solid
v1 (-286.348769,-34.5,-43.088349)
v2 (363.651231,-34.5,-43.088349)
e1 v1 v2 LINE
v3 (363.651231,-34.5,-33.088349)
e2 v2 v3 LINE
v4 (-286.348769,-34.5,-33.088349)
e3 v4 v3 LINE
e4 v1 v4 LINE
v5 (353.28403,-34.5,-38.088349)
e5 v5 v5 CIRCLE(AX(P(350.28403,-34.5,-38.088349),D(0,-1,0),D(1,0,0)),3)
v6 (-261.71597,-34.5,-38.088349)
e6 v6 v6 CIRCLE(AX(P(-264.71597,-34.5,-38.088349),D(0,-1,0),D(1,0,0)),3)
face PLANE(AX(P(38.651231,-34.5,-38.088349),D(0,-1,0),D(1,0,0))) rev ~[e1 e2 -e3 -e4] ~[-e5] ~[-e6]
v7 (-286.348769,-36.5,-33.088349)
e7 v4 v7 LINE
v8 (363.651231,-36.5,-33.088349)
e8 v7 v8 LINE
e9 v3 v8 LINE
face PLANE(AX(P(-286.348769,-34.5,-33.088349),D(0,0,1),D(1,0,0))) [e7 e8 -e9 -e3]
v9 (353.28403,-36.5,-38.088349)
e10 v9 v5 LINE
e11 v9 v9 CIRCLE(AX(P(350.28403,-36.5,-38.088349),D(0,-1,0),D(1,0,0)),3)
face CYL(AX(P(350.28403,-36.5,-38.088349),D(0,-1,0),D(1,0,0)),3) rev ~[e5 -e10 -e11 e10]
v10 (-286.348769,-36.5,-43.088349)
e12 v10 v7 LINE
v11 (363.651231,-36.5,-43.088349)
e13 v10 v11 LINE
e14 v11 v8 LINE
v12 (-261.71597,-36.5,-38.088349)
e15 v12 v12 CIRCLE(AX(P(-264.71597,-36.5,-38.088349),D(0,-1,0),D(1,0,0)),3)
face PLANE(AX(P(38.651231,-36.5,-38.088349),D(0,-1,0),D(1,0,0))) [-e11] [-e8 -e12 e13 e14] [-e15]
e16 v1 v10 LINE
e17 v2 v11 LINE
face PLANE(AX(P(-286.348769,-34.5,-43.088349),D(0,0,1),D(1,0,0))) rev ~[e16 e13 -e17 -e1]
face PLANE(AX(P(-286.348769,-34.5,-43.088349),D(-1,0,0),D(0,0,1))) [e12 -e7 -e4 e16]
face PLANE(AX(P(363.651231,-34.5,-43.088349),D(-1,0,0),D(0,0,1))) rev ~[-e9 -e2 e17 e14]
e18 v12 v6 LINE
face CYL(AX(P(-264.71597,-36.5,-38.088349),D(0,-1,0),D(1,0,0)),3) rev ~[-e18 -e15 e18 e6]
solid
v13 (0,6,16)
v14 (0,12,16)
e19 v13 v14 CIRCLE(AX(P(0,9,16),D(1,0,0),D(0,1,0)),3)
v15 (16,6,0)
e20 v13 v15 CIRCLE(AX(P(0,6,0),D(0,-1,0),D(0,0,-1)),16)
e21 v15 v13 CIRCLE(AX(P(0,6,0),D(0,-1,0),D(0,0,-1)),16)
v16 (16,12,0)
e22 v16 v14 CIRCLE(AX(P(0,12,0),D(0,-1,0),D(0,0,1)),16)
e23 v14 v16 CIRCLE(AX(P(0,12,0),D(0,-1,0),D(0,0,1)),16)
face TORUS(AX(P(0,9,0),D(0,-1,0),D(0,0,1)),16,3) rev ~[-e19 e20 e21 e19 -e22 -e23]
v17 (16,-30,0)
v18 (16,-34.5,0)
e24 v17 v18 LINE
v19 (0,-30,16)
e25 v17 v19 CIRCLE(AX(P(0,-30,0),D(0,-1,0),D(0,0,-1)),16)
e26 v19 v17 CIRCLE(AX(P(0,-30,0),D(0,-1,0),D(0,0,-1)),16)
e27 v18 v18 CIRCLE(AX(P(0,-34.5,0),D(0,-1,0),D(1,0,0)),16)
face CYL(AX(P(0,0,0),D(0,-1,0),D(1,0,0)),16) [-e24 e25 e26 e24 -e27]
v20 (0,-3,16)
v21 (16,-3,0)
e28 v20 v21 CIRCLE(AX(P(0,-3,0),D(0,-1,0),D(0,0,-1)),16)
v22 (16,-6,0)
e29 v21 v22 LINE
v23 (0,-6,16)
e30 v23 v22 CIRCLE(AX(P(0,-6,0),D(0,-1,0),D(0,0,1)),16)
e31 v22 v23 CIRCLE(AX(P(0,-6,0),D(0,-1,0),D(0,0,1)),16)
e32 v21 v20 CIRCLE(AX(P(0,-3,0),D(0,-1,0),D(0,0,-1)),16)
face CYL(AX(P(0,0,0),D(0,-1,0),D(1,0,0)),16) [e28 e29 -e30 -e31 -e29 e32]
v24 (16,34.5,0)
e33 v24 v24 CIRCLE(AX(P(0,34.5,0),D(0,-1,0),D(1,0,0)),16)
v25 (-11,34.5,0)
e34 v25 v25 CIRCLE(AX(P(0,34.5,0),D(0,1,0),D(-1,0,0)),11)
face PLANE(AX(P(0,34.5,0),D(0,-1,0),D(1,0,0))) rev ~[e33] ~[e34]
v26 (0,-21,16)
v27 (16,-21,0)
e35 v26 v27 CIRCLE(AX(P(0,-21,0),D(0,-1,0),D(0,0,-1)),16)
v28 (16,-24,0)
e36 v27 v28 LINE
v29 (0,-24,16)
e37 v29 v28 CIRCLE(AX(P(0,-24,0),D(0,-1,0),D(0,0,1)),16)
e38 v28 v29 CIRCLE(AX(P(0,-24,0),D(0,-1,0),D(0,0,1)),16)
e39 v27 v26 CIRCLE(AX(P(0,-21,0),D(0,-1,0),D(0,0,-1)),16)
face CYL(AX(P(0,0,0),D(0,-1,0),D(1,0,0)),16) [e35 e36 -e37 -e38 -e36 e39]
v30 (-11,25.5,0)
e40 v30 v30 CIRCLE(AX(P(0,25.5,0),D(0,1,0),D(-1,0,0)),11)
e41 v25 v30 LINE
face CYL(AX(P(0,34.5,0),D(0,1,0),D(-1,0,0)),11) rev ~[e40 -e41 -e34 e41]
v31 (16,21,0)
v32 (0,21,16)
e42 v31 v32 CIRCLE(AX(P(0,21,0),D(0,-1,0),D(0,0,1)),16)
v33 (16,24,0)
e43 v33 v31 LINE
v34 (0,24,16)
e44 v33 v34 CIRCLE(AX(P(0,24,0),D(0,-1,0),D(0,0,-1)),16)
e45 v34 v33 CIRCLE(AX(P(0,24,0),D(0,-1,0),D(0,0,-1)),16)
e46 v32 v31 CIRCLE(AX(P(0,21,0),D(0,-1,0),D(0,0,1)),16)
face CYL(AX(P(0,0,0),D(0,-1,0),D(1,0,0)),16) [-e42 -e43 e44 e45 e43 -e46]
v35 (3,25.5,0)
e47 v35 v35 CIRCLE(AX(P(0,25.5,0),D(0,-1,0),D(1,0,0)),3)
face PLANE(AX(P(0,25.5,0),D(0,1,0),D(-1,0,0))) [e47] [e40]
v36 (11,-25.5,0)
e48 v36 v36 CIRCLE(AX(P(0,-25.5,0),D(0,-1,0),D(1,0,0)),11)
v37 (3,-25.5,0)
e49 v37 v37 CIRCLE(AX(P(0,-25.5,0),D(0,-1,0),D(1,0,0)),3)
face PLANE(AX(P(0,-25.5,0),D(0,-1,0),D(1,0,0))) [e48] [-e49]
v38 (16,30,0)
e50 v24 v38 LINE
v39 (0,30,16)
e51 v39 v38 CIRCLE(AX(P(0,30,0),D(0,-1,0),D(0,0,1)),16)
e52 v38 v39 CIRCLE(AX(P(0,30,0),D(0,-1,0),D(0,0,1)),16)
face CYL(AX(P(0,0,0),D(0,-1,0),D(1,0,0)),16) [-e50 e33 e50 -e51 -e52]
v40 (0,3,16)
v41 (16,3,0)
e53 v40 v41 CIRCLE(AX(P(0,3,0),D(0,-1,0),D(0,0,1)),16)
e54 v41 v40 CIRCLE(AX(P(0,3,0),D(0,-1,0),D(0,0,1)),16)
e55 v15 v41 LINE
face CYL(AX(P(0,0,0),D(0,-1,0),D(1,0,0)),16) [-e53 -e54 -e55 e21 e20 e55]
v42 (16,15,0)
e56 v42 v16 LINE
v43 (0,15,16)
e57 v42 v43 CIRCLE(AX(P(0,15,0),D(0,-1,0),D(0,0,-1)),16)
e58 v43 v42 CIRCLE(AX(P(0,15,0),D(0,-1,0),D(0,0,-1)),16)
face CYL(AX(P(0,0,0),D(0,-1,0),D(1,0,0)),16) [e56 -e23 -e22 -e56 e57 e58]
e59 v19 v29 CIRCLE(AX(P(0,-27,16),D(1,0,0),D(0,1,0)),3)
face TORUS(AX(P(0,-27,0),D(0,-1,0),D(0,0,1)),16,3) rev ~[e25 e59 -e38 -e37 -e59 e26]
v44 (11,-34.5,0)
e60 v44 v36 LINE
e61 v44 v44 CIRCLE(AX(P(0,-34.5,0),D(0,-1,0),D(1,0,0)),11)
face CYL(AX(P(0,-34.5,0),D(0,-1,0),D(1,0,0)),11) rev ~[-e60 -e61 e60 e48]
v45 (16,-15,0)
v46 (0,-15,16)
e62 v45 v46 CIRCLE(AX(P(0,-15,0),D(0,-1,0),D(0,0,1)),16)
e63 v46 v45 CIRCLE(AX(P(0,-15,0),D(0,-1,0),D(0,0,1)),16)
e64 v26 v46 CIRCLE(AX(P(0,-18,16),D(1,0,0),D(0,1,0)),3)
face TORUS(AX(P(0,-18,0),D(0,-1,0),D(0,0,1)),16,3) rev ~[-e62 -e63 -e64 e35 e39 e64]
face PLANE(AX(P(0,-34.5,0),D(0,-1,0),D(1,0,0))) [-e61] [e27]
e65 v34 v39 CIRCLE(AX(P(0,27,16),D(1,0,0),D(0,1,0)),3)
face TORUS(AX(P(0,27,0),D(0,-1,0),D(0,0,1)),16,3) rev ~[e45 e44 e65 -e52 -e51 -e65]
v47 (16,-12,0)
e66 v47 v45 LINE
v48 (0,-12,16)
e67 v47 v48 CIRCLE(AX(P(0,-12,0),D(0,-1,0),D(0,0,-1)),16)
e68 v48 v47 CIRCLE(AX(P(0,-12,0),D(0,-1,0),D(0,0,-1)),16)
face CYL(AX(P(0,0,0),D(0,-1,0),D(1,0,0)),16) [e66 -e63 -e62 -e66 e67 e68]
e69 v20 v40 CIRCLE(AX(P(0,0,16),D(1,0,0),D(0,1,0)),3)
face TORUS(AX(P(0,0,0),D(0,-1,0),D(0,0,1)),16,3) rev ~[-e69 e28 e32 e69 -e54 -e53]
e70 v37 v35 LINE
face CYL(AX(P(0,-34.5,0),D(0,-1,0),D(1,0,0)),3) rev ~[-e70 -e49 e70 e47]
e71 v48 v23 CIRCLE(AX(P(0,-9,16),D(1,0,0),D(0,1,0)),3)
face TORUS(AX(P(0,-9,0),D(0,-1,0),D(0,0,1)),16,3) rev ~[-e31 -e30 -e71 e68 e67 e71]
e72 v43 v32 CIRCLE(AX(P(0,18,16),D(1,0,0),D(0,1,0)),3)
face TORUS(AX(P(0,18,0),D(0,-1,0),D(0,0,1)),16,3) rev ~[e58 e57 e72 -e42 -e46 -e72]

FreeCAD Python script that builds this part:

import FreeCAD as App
import Part
import Sketcher

doc = App.newDocument("Part")
body = doc.addObject("PartDesign::Body", "Body")

sketch1 = body.newObject("Sketcher::SketchObject", "Sketch")
sketch1.AttachmentSupport = (doc.getObject("XZ_Plane"), [""])
sketch1.MapMode = "FlatFace"
sketch1.addGeometry(Part.Circle(App.Vector(0, 0, 0), App.Vector(0, 0, 1), 16), False)
sketch1.addConstraint(Sketcher.Constraint("Coincident", 0, 3, -1, 1))
sketch1.addConstraint(Sketcher.Constraint("Diameter", 0, 32.0))
pad1 = body.newObject("PartDesign::Pad", "Pad")
pad1.Profile = sketch1
pad1.Length = 69
pad1.Midplane = True

sketch2 = body.newObject("Sketcher::SketchObject", "Sketch001")
sketch2.AttachmentSupport = (doc.getObject("YZ_Plane"), [""])
sketch2.MapMode = "FlatFace"
sketch2.addGeometry(Part.Circle(App.Vector(-27, 16, 0), App.Vector(0, 0, 1), 3), False)
sketch2.addGeometry(Part.Circle(App.Vector(-18, 16, 0), App.Vector(0, 0, 1), 3), False)
sketch2.addGeometry(Part.Circle(App.Vector(-9, 16, 0), App.Vector(0, 0, 1), 3), False)
sketch2.addGeometry(Part.Circle(App.Vector(0, 16, 0), App.Vector(0, 0, 1), 3), False)
sketch2.addGeometry(Part.Circle(App.Vector(9, 16, 0), App.Vector(0, 0, 1), 3), False)
sketch2.addGeometry(Part.Circle(App.Vector(18, 16, 0), App.Vector(0, 0, 1), 3), False)
sketch2.addGeometry(Part.Circle(App.Vector(27, 16, 0), App.Vector(0, 0, 1), 3), False)
sketch2.addConstraint(Sketcher.Constraint("Equal", 0, 1))
sketch2.addConstraint(Sketcher.Constraint("Equal", 1, 2))
sketch2.addConstraint(Sketcher.Constraint("Equal", 2, 3))
sketch2.addConstraint(Sketcher.Constraint("Equal", 3, 4))
sketch2.addConstraint(Sketcher.Constraint("Equal", 4, 5))
sketch2.addConstraint(Sketcher.Constraint("Equal", 5, 6))
sketch2.addConstraint(Sketcher.Constraint("Symmetric", 2, 3, 4, 3, -2))
sketch2.addConstraint(Sketcher.Constraint("Symmetric", 1, 3, 5, 3, -2))
sketch2.addConstraint(Sketcher.Constraint("Symmetric", 0, 3, 6, 3, -2))
sketch2.addConstraint(Sketcher.Constraint("PointOnObject", 3, 3, -2))
sketch2.addConstraint(Sketcher.Constraint("Horizontal", 0, 3, 1, 3))
sketch2.addConstraint(Sketcher.Constraint("Horizontal", 1, 3, 2, 3))
sketch2.addConstraint(Sketcher.Constraint("Horizontal", 2, 3, 3, 3))
sketch2.addConstraint(Sketcher.Constraint("Diameter", 0, 6.0))
sketch2.addConstraint(Sketcher.Constraint("DistanceX", 0, 3, -1, 1, 27.0))
sketch2.addConstraint(Sketcher.Constraint("DistanceY", -1, 1, 0, 3, 16.0))
sketch2.addConstraint(Sketcher.Constraint("DistanceX", 1, 3, -1, 1, 18.0))
sketch2.addConstraint(Sketcher.Constraint("DistanceX", 2, 3, -1, 1, 9.0))
groove = body.newObject("PartDesign::Groove", "Groove")
groove.Profile = sketch2
groove.ReferenceAxis = (sketch2, ["H_Axis"])
groove.Angle = 360

sketch3 = body.newObject("Sketcher::SketchObject", "Sketch002")
sketch3.AttachmentSupport = (doc.getObject("XZ_Plane"), [""])
sketch3.MapMode = "FlatFace"
sketch3.AttachmentOffset = App.Placement(App.Vector(0, 0, 34.5), App.Rotation())
sketch3.addGeometry(Part.Circle(App.Vector(0, 0, 0), App.Vector(0, 0, 1), 3), False)
sketch3.addConstraint(Sketcher.Constraint("Coincident", 0, 3, -1, 1))
sketch3.addConstraint(Sketcher.Constraint("Diameter", 0, 6.0))
pocket1 = body.newObject("PartDesign::Pocket", "Pocket")
pocket1.Profile = sketch3
pocket1.Type = "ThroughAll"

sketch4 = body.newObject("Sketcher::SketchObject", "Sketch003")
sketch4.AttachmentSupport = (doc.getObject("XZ_Plane"), [""])
sketch4.MapMode = "FlatFace"
sketch4.AttachmentOffset = App.Placement(App.Vector(0, 0, 34.5), App.Rotation())
sketch4.addGeometry(Part.Circle(App.Vector(0, 0, 0), App.Vector(0, 0, 1), 11), False)
sketch4.addConstraint(Sketcher.Constraint("Coincident", 0, 3, -1, 1))
sketch4.addConstraint(Sketcher.Constraint("Diameter", 0, 22.0))
pocket2 = body.newObject("PartDesign::Pocket", "Pocket001")
pocket2.Profile = sketch4
pocket2.Length = 9

sketch5 = body.newObject("Sketcher::SketchObject", "Sketch004")
sketch5.AttachmentSupport = (doc.getObject("XZ_Plane"), [""])
sketch5.MapMode = "FlatFace"
sketch5.AttachmentOffset = App.Placement(App.Vector(0, 0, -34.5), App.Rotation())
sketch5.addGeometry(Part.Circle(App.Vector(0, 0, 0), App.Vector(0, 0, 1), 11), False)
sketch5.addConstraint(Sketcher.Constraint("Coincident", 0, 3, -1, 1))
sketch5.addConstraint(Sketcher.Constraint("Diameter", 0, 22.0))
pocket3 = body.newObject("PartDesign::Pocket", "Pocket002")
pocket3.Profile = sketch5
pocket3.Length = 9
pocket3.Reversed = True
body2 = doc.addObject("PartDesign::Body", "Body001")

sketch6 = body2.newObject("Sketcher::SketchObject", "Sketch005")
sketch6.AttachmentSupport = (doc.getObject("XZ_Plane001"), [""])
sketch6.MapMode = "FlatFace"
sketch6.AttachmentOffset = App.Placement(App.Vector(0, 0, 34.5), App.Rotation())
sketch6.addGeometry(Part.LineSegment(App.Vector(-286.348769, -33.088349, 0), App.Vector(-286.348769, -43.088349, 0)), False)
sketch6.addGeometry(Part.LineSegment(App.Vector(-286.348769, -43.088349, 0), App.Vector(363.651231, -43.088349, 0)), False)
sketch6.addGeometry(Part.LineSegment(App.Vector(363.651231, -43.088349, 0), App.Vector(363.651231, -33.088349, 0)), False)
sketch6.addGeometry(Part.LineSegment(App.Vector(363.651231, -33.088349, 0), App.Vector(-286.348769, -33.088349, 0)), False)
sketch6.addConstraint(Sketcher.Constraint("Coincident", 0, 2, 1, 1))
sketch6.addConstraint(Sketcher.Constraint("Coincident", 1, 2, 2, 1))
sketch6.addConstraint(Sketcher.Constraint("Coincident", 2, 2, 3, 1))
sketch6.addConstraint(Sketcher.Constraint("Coincident", 3, 2, 0, 1))
sketch6.addConstraint(Sketcher.Constraint("Vertical", 0))
sketch6.addConstraint(Sketcher.Constraint("Horizontal", 1))
sketch6.addConstraint(Sketcher.Constraint("Vertical", 2))
sketch6.addConstraint(Sketcher.Constraint("Horizontal", 3))
sketch6.addConstraint(Sketcher.Constraint("DistanceX", 1, 1, 1, 2, 650.0))
sketch6.addConstraint(Sketcher.Constraint("DistanceY", 0, 2, 0, 1, 10.0))
sketch6.addConstraint(Sketcher.Constraint("DistanceX", 0, 2, -1, 1, 286.348769))
sketch6.addConstraint(Sketcher.Constraint("DistanceY", 0, 2, -1, 1, 43.088349))
pad2 = body2.newObject("PartDesign::Pad", "Pad001")
pad2.Profile = sketch6
pad2.Length = 2

sketch7 = body2.newObject("Sketcher::SketchObject", "Sketch006")
sketch7.AttachmentSupport = (doc.getObject("XZ_Plane001"), [""])
sketch7.MapMode = "FlatFace"
sketch7.AttachmentOffset = App.Placement(App.Vector(0, 0, 36.5), App.Rotation())
sketch7.addGeometry(Part.Circle(App.Vector(350.28403, -38.088349, 0), App.Vector(0, 0, 1), 3), False)
sketch7.addGeometry(Part.Circle(App.Vector(-264.71597, -38.088349, 0), App.Vector(0, 0, 1), 3), False)
sketch7.addConstraint(Sketcher.Constraint("Equal", 0, 1))
sketch7.addConstraint(Sketcher.Constraint("Horizontal", 0, 3, 1, 3))
sketch7.addConstraint(Sketcher.Constraint("Diameter", 0, 6.0))
sketch7.addConstraint(Sketcher.Constraint("DistanceX", 1, 3, 0, 3, 615.0))
sketch7.addConstraint(Sketcher.Constraint("DistanceX", -1, 1, 0, 3, 350.28403))
sketch7.addConstraint(Sketcher.Constraint("DistanceY", 0, 3, -1, 1, 38.088349))
pocket4 = body2.newObject("PartDesign::Pocket", "Pocket003")
pocket4.Profile = sketch7
pocket4.Length = 25

doc.recompute()
